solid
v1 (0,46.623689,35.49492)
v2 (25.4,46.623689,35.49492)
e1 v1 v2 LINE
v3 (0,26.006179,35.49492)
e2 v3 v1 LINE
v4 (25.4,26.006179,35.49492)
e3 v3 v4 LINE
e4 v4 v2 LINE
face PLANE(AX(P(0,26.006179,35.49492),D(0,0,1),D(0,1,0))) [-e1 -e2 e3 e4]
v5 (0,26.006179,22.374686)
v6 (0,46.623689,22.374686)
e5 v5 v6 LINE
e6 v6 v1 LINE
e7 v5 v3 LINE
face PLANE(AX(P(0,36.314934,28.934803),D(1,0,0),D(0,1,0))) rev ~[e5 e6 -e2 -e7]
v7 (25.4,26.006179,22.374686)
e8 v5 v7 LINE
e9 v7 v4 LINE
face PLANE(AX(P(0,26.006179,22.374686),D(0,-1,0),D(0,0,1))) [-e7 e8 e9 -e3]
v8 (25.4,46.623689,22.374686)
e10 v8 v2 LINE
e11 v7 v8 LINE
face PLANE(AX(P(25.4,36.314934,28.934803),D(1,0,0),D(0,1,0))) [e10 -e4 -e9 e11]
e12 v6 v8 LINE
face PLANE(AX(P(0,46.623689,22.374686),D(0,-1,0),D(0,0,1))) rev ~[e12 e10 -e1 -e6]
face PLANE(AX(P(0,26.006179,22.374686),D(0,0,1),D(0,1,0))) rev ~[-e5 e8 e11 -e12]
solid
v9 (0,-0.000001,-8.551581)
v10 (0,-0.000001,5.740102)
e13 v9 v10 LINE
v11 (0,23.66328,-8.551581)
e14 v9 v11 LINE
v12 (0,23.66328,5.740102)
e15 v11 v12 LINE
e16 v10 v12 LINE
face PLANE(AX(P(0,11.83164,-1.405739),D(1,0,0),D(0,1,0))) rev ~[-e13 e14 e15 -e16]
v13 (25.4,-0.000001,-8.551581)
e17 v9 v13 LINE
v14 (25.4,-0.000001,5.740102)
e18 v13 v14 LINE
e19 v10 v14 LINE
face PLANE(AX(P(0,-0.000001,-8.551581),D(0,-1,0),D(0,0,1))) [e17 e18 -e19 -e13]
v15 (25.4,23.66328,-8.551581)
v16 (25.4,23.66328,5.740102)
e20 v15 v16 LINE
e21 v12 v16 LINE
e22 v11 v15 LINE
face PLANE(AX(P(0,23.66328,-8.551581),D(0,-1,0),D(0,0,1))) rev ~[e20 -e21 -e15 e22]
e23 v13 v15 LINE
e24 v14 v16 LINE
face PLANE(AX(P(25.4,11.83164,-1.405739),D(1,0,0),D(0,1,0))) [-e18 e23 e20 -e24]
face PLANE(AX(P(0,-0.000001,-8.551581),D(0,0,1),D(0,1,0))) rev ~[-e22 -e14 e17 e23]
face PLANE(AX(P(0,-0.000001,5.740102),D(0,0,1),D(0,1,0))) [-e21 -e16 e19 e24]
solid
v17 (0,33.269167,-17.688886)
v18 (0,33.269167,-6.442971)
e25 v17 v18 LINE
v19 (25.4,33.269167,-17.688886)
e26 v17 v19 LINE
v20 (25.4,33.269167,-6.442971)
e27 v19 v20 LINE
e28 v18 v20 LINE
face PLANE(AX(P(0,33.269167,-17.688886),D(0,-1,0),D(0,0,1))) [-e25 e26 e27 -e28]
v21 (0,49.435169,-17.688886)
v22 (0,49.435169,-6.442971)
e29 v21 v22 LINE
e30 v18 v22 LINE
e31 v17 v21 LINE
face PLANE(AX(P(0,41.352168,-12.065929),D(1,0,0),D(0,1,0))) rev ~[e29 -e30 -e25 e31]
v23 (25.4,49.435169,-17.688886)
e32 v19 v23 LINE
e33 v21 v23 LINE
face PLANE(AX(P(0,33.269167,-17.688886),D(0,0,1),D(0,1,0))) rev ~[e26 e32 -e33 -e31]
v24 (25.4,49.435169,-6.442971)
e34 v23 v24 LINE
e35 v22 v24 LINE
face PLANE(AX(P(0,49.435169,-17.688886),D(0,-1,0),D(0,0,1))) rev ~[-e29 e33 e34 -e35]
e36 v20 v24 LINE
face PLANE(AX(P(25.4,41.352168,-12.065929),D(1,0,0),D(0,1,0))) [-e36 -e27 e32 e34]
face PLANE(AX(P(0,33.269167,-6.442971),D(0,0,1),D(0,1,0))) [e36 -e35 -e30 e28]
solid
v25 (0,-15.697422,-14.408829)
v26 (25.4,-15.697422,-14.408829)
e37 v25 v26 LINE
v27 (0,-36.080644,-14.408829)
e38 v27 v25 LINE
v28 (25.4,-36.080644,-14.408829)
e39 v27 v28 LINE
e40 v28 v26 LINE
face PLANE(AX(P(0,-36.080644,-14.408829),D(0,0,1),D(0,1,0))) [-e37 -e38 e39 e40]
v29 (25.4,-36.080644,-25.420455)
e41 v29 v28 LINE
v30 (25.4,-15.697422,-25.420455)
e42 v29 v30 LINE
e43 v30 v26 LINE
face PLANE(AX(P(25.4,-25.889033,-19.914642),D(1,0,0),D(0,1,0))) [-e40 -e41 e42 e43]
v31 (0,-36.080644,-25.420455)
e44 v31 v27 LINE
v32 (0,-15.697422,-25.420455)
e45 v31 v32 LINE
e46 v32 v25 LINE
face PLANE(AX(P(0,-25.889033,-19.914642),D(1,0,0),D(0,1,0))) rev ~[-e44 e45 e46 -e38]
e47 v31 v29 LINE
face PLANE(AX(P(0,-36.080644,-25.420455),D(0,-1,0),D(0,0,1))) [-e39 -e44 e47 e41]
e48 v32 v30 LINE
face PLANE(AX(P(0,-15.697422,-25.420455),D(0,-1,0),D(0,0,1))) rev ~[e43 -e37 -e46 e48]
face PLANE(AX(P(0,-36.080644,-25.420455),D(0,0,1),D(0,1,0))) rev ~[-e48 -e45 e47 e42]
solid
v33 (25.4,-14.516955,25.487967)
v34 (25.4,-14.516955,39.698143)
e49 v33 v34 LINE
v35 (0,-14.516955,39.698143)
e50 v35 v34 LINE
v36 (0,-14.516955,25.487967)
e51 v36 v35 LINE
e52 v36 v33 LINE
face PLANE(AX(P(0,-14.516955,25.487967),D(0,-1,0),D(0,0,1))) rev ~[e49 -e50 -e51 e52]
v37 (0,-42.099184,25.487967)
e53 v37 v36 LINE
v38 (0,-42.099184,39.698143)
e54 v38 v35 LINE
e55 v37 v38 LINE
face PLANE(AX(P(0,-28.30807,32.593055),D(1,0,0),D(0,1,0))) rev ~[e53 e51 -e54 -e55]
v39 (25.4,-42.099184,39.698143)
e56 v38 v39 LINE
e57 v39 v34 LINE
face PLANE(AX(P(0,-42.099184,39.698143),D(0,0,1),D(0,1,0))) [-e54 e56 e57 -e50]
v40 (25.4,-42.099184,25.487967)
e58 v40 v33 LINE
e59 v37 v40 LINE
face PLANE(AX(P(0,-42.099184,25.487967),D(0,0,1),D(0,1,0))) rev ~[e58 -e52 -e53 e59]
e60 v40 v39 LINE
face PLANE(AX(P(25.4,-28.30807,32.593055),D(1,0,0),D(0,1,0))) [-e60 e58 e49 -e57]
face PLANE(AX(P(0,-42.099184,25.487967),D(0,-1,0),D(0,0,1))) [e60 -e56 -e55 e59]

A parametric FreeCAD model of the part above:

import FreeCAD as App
import Part
import Sketcher
from FreeCAD import Vector
Q = App.Units.Quantity


def add_polygon(sketch, points):
    """Adds a closed chain of lines whose ends are joined by coincident constraints."""
    first, n = sketch.GeometryCount, len(points)
    for a, b in zip(points, points[1:] + points[:1]):
        sketch.addGeometry(Part.LineSegment(App.Vector(*a, 0), App.Vector(*b, 0)), False)
    for i in range(n):
        sketch.addConstraint(Sketcher.Constraint("Coincident", first + i, 2, first + (i + 1) % n, 1))

doc = App.newDocument("Part")
body = doc.addObject("PartDesign::Body", "Body")

# Sketch on YZ plane
sketch1 = body.newObject("Sketcher::SketchObject", "Sketch")
sketch1.AttachmentSupport = (doc.getObject("YZ_Plane"), [""])
sketch1.MapMode = "FlatFace"
add_polygon(sketch1, [(-42, 40), (-42, 25), (-15, 25), (-15, 40)])  # lines 0-3
sketch1.addConstraint(Sketcher.Constraint("Vertical", 0))
sketch1.addConstraint(Sketcher.Constraint("Horizontal", 1))
sketch1.addConstraint(Sketcher.Constraint("Vertical", 2))
sketch1.addConstraint(Sketcher.Constraint("Horizontal", 3))
sketch1.addConstraint(Sketcher.Constraint("DistanceX", 1, 1, 1, 2, Q("27.582229 mm")))
sketch1.addConstraint(Sketcher.Constraint("DistanceY", 0, 2, 0, 1, Q("14.210176 mm")))
sketch1.addConstraint(Sketcher.Constraint("DistanceX", 0, 2, -1, 1, Q("42.099184 mm")))
sketch1.addConstraint(Sketcher.Constraint("DistanceY", -1, 1, 0, 2, Q("25.487967 mm")))
pad1 = body.newObject("PartDesign::Pad", "Pad")
pad1.Profile = sketch1
pad1.Length = Q("1 in")
body2 = doc.addObject("PartDesign::Body", "Body001")

# Sketch on YZ plane
sketch2 = body2.newObject("Sketcher::SketchObject", "Sketch001")
sketch2.AttachmentSupport = (doc.getObject("YZ_Plane001"), [""])
sketch2.MapMode = "FlatFace"
add_polygon(sketch2, [(26, 35), (26, 22), (47, 22), (47, 35)])  # lines 0-3
sketch2.addConstraint(Sketcher.Constraint("Vertical", 0))
sketch2.addConstraint(Sketcher.Constraint("Horizontal", 1))
sketch2.addConstraint(Sketcher.Constraint("Vertical", 2))
sketch2.addConstraint(Sketcher.Constraint("Horizontal", 3))
sketch2.addConstraint(Sketcher.Constraint("DistanceX", 1, 1, 1, 2, Q("20.617509 mm")))
sketch2.addConstraint(Sketcher.Constraint("DistanceY", 0, 2, 0, 1, Q("13.120234 mm")))
sketch2.addConstraint(Sketcher.Constraint("DistanceX", -1, 1, 0, 2, Q("26.006179 mm")))
sketch2.addConstraint(Sketcher.Constraint("DistanceY", -1, 1, 2, 2, Q("35.49492 mm")))
pad2 = body2.newObject("PartDesign::Pad", "Pad001")
pad2.Profile = sketch2
pad2.Length = Q("1 in")
body3 = doc.addObject("PartDesign::Body", "Body002")

# Sketch on YZ plane
sketch3 = body3.newObject("Sketcher::SketchObject", "Sketch002")
sketch3.AttachmentSupport = (doc.getObject("YZ_Plane002"), [""])
sketch3.MapMode = "FlatFace"
add_polygon(sketch3, [(33, -6), (33, -18), (49, -18), (49, -6)])  # lines 0-3
sketch3.addConstraint(Sketcher.Constraint("Vertical", 0))
sketch3.addConstraint(Sketcher.Constraint("Horizontal", 1))
sketch3.addConstraint(Sketcher.Constraint("Vertical", 2))
sketch3.addConstraint(Sketcher.Constraint("Horizontal", 3))
sketch3.addConstraint(Sketcher.Constraint("DistanceX", 1, 1, 1, 2, Q("16.166002 mm")))
sketch3.addConstraint(Sketcher.Constraint("DistanceY", 0, 2, 0, 1, Q("11.245915 mm")))
sketch3.addConstraint(Sketcher.Constraint("DistanceX", -1, 1, 1, 2, Q("49.435169 mm")))
sketch3.addConstraint(Sketcher.Constraint("DistanceY", 2, 2, -1, 1, Q("6.442971 mm")))
pad3 = body3.newObject("PartDesign::Pad", "Pad002")
pad3.Profile = sketch3
pad3.Length = Q("1 in")
body4 = doc.addObject("PartDesign::Body", "Body003")

# Sketch on YZ plane
sketch4 = body4.newObject("Sketcher::SketchObject", "Sketch003")
sketch4.AttachmentSupport = (doc.getObject("YZ_Plane003"), [""])
sketch4.MapMode = "FlatFace"
add_polygon(sketch4, [(0, 6), (0, -9), (24, -9), (24, 6)])  # lines 0-3
sketch4.addConstraint(Sketcher.Constraint("Vertical", 0))
sketch4.addConstraint(Sketcher.Constraint("Horizontal", 1))
sketch4.addConstraint(Sketcher.Constraint("Vertical", 2))
sketch4.addConstraint(Sketcher.Constraint("Horizontal", 3))
sketch4.addConstraint(Sketcher.Constraint("PointOnObject", 0, 2, -2))
sketch4.addConstraint(Sketcher.Constraint("DistanceX", 1, 1, 1, 2, Q("23.663281 mm")))
sketch4.addConstraint(Sketcher.Constraint("DistanceY", 0, 2, 0, 1, Q("14.291683 mm")))
sketch4.addConstraint(Sketcher.Constraint("DistanceY", 0, 2, -1, 1, Q("8.551581 mm")))
pad4 = body4.newObject("PartDesign::Pad", "Pad003")
pad4.Profile = sketch4
pad4.Length = Q("1 in")
body5 = doc.addObject("PartDesign::Body", "Body004")

# Sketch on YZ plane
sketch5 = body5.newObject("Sketcher::SketchObject", "Sketch004")
sketch5.AttachmentSupport = (doc.getObject("YZ_Plane004"), [""])
sketch5.MapMode = "FlatFace"
add_polygon(sketch5, [(-36, -14), (-36, -25), (-16, -25), (-16, -14)])  # lines 0-3
sketch5.addConstraint(Sketcher.Constraint("Vertical", 0))
sketch5.addConstraint(Sketcher.Constraint("Horizontal", 1))
sketch5.addConstraint(Sketcher.Constraint("Vertical", 2))
sketch5.addConstraint(Sketcher.Constraint("Horizontal", 3))
sketch5.addConstraint(Sketcher.Constraint("DistanceX", 1, 1, 1, 2, Q("20.383222 mm")))
sketch5.addConstraint(Sketcher.Constraint("DistanceY", 0, 2, 0, 1, Q("11.011626 mm")))
sketch5.addConstraint(Sketcher.Constraint("DistanceY", 2, 2, -1, 1, Q("14.408829 mm")))
sketch5.addConstraint(Sketcher.Constraint("DistanceX", 0, 2, -1, 1, Q("36.080644 mm")))
pad5 = body5.newObject("PartDesign::Pad", "Pad004")
pad5.Profile = sketch5
pad5.Length = Q("1 in")

doc.recompute()
